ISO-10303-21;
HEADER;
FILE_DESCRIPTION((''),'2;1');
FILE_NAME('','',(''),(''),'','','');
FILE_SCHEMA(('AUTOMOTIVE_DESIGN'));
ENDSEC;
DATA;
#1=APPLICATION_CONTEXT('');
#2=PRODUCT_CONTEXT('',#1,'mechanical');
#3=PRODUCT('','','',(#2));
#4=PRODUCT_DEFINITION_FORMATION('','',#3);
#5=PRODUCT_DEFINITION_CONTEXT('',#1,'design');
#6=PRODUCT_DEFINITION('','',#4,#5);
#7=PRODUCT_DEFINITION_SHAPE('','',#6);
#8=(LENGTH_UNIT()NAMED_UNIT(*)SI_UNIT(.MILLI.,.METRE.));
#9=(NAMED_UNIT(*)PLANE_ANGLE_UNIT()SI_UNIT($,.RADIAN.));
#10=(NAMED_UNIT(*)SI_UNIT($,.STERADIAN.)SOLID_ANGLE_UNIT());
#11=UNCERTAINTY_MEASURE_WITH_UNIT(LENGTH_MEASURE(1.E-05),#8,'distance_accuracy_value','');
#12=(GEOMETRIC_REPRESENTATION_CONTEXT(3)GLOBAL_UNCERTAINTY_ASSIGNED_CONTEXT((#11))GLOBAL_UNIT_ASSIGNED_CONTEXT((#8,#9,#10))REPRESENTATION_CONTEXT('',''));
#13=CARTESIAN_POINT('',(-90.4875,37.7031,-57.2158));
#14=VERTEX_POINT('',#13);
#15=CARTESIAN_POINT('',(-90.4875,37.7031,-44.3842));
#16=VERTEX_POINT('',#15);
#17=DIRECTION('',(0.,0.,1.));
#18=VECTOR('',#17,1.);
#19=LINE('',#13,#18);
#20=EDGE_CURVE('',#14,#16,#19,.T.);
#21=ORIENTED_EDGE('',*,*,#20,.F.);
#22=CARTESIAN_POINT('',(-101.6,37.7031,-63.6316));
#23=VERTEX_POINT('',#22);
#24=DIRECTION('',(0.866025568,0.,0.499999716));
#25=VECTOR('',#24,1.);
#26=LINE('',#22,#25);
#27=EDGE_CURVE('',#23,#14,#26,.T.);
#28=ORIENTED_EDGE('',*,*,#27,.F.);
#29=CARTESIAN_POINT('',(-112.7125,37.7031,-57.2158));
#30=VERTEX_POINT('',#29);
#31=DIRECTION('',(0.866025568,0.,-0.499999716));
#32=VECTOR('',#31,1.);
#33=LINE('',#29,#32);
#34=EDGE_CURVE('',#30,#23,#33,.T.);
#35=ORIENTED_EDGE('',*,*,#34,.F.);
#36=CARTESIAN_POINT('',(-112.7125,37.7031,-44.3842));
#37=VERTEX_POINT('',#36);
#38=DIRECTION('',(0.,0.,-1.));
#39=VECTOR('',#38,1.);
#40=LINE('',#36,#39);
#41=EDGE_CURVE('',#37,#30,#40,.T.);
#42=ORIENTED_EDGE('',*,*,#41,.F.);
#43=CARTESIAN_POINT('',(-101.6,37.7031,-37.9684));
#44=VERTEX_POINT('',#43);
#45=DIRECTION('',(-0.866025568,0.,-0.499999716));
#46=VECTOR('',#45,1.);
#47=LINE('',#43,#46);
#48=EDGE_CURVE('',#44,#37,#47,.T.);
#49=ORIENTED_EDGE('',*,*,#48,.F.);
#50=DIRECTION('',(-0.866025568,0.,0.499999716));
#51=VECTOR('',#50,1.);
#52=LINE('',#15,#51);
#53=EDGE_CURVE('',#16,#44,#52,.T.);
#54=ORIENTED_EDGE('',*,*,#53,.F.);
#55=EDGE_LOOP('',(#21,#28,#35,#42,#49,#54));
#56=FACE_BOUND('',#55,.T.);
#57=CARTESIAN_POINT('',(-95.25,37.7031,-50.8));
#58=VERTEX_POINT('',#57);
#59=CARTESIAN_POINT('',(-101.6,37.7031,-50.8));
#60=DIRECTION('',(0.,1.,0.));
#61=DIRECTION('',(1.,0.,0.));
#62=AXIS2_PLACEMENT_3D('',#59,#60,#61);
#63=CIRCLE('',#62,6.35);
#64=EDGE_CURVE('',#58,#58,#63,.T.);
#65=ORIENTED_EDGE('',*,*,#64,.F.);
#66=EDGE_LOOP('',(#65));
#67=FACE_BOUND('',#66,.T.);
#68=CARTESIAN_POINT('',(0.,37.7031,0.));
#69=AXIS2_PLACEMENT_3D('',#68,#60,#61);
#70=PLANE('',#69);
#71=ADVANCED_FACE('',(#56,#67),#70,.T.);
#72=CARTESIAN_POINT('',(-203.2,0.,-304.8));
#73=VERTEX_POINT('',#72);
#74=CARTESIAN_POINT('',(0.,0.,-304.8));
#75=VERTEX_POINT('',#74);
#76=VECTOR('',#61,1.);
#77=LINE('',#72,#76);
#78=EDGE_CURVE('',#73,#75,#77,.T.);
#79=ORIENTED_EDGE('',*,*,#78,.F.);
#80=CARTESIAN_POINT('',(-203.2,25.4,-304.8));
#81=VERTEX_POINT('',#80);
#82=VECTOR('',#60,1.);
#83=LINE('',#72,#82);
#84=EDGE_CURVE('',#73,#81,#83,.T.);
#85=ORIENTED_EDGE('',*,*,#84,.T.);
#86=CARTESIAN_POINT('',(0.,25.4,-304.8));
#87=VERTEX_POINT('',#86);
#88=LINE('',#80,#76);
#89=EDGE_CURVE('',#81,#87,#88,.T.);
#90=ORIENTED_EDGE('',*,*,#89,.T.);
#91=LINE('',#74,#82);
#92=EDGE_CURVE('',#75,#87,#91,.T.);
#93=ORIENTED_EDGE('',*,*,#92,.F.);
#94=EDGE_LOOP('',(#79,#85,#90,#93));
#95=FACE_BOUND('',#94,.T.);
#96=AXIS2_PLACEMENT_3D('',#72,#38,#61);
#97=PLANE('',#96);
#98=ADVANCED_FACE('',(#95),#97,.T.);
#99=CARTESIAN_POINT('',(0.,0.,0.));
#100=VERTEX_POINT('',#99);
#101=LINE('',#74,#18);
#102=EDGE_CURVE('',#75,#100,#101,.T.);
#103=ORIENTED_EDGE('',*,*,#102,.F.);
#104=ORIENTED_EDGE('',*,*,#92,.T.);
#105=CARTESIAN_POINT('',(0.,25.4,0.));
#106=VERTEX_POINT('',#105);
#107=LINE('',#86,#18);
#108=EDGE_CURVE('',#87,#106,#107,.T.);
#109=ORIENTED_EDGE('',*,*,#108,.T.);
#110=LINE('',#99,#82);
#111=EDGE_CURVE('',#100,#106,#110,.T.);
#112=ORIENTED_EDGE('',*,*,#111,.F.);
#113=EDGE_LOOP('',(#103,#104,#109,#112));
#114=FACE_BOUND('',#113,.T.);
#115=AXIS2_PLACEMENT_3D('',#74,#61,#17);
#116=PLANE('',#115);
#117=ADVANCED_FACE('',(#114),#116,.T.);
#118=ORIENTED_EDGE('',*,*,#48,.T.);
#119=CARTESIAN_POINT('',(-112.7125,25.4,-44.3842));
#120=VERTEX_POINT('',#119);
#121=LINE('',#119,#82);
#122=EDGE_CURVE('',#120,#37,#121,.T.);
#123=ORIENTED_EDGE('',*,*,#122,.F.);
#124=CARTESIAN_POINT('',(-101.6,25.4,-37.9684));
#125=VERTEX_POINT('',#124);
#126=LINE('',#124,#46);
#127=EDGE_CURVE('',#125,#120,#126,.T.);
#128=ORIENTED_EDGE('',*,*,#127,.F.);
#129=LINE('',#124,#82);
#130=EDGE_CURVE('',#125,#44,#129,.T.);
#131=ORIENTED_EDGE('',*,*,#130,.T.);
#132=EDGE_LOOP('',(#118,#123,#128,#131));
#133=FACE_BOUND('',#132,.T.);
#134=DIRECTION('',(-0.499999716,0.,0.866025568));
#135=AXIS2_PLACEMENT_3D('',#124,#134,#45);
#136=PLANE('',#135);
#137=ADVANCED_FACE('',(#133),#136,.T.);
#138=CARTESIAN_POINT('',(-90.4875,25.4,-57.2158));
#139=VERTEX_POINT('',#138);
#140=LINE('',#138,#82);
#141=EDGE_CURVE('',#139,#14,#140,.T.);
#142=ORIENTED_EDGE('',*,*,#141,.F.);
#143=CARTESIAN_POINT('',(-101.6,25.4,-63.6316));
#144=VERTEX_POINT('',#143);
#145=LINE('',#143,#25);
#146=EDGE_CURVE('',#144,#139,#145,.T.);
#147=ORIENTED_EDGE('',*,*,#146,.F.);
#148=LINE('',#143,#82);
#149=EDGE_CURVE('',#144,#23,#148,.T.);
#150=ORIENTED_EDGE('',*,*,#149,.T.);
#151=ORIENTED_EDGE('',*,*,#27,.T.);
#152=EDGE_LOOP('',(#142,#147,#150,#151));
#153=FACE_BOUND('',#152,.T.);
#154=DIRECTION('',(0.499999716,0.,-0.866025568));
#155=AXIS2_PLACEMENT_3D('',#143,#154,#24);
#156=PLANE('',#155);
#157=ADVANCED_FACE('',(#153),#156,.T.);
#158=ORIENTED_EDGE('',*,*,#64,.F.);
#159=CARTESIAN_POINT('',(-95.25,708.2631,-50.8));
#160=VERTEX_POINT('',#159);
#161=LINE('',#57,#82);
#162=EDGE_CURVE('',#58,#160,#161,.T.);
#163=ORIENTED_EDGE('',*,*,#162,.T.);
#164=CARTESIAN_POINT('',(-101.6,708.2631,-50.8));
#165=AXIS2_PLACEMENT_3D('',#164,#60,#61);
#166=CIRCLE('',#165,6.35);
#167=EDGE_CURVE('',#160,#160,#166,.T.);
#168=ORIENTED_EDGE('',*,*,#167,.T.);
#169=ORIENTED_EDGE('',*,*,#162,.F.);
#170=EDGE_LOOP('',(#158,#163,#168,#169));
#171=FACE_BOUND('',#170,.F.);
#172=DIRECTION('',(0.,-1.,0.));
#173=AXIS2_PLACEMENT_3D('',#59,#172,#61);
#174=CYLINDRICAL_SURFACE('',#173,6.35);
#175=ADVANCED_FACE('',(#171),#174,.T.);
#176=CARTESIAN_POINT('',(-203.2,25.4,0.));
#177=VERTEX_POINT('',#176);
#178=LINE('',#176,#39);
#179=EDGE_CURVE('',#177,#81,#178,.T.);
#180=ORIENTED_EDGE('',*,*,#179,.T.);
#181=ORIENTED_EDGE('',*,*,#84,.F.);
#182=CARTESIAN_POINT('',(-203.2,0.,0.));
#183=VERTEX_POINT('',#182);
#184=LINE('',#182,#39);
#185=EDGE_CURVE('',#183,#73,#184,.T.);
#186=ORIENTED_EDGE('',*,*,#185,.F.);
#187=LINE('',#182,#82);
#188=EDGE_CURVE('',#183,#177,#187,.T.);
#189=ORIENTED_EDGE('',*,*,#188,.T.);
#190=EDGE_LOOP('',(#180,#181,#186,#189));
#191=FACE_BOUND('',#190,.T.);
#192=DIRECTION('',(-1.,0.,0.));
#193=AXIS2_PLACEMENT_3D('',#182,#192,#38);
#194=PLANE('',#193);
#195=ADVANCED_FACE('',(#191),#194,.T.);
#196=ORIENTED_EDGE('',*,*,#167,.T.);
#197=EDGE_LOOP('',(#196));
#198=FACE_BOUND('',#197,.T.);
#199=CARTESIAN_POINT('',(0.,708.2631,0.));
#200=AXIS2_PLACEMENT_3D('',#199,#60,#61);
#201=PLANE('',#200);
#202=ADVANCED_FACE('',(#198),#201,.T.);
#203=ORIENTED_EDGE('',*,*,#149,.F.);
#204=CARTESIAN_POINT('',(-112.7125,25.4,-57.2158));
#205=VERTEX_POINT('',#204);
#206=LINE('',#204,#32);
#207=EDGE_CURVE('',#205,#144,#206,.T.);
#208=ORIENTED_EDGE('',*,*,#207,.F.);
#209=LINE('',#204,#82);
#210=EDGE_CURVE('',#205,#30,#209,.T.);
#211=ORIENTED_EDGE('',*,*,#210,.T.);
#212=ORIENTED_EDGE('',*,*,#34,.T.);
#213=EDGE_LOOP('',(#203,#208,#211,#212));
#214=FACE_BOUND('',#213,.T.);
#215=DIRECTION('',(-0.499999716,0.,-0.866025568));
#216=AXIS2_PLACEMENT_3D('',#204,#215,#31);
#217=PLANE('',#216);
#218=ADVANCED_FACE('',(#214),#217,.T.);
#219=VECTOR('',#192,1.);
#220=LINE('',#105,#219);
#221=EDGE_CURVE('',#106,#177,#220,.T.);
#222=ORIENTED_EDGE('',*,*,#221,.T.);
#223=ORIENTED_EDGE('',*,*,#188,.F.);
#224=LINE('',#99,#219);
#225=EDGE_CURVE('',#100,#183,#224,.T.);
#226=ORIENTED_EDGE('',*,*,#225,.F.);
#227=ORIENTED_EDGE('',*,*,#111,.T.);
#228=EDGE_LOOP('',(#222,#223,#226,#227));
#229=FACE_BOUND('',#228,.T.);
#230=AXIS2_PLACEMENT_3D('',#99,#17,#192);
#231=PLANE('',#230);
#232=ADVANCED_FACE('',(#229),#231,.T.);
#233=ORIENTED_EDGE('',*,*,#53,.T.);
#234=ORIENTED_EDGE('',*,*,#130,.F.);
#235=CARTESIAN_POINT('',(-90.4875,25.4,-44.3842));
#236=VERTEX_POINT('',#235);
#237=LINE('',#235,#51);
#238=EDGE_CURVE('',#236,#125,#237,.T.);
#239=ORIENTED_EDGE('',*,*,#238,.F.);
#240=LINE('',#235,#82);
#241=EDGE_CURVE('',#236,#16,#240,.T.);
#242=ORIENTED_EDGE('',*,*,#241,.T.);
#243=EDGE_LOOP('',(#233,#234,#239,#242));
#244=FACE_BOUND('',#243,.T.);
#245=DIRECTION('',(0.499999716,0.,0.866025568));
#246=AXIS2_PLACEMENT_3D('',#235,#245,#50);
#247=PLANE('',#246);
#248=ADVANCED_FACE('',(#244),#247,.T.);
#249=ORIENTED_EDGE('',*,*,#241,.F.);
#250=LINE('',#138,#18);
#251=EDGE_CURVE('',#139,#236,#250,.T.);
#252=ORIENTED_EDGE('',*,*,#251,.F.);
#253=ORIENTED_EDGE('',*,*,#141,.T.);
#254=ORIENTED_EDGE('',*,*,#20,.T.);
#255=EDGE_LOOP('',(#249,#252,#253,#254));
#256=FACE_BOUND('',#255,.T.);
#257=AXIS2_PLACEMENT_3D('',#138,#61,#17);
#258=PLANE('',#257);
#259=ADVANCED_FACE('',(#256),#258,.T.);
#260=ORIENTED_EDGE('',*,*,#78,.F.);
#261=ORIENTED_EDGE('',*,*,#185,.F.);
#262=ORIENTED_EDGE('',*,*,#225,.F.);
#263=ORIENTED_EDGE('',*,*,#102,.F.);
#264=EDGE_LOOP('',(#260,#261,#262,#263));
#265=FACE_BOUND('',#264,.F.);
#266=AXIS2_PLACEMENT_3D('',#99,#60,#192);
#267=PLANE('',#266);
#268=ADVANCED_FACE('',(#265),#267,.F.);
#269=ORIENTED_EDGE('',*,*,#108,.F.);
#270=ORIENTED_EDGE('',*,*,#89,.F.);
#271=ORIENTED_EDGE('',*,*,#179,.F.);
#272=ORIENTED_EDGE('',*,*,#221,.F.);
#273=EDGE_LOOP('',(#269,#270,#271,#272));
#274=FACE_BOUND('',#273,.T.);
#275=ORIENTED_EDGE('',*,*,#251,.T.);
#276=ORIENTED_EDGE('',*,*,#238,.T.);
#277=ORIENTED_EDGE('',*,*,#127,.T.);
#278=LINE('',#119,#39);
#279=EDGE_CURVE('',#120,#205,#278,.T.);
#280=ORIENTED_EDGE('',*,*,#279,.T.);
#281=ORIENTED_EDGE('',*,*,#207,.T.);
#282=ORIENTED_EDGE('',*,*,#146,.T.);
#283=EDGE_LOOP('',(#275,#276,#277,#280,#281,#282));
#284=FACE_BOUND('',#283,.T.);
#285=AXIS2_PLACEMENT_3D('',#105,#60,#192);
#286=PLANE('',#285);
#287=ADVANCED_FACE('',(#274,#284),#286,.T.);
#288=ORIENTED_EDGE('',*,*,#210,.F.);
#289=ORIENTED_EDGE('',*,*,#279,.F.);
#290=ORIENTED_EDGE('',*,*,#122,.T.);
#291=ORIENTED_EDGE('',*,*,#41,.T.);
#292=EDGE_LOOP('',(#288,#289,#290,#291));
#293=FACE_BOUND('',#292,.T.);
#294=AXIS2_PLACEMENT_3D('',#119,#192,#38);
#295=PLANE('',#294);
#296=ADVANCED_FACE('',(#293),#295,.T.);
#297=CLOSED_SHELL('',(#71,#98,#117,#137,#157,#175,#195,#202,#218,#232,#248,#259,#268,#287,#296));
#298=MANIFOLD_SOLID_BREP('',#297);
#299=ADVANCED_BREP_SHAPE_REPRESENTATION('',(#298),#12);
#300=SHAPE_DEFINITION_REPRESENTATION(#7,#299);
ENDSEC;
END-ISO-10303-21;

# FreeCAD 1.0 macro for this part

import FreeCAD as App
import Part
import Sketcher
from FreeCAD import Vector
Q = App.Units.Quantity

doc = App.newDocument("Part")
body = doc.addObject("PartDesign::Body", "Body")

# Sketch on XZ plane
sketch1 = body.newObject("Sketcher::SketchObject", "Sketch")
sketch1.AttachmentSupport = (doc.getObject("XZ_Plane"), [""])
sketch1.MapMode = "FlatFace"
sketch1.addGeometry(Part.LineSegment(Vector(-203, 0, 0), Vector(0, 0, 0)), False)
sketch1.addGeometry(Part.LineSegment(Vector(0, 0, 0), Vector(0, -305, 0)), False)
sketch1.addGeometry(Part.LineSegment(Vector(0, -305, 0), Vector(-203, -305, 0)), False)
sketch1.addGeometry(Part.LineSegment(Vector(-203, -305, 0), Vector(-203, 0, 0)), False)
sketch1.addConstraint(Sketcher.Constraint("Coincident", 0, 2, 1, 1))
sketch1.addConstraint(Sketcher.Constraint("Coincident", 1, 2, 2, 1))
sketch1.addConstraint(Sketcher.Constraint("Coincident", 2, 2, 3, 1))
sketch1.addConstraint(Sketcher.Constraint("Coincident", 3, 2, 0, 1))
sketch1.addConstraint(Sketcher.Constraint("Horizontal", 0))
sketch1.addConstraint(Sketcher.Constraint("Vertical", 1))
sketch1.addConstraint(Sketcher.Constraint("Horizontal", 2))
sketch1.addConstraint(Sketcher.Constraint("Vertical", 3))
sketch1.addConstraint(Sketcher.Constraint("Coincident", 0, 2, -1, 1))
sketch1.addConstraint(Sketcher.Constraint("DistanceX", 0, 1, 0, 2, Q("8 in")))
sketch1.addConstraint(Sketcher.Constraint("DistanceY", 1, 2, 1, 1, Q("12 in")))
pad1 = body.newObject("PartDesign::Pad", "Pad")
pad1.Profile = sketch1
pad1.Length = Q("1 in")
pad1.Reversed = True

# Sketch on XZ plane
sketch2 = body.newObject("Sketcher::SketchObject", "Sketch001")
sketch2.AttachmentSupport = (doc.getObject("XZ_Plane"), [""])
sketch2.MapMode = "FlatFace"
sketch2.AttachmentOffset = App.Placement(Vector(0, 0, -1 * 25.4), App.Rotation())
sketch2.addGeometry(Part.LineSegment(Vector(-90, -57, 0), Vector(-102, -64, 0)), False)
sketch2.addGeometry(Part.LineSegment(Vector(-102, -64, 0), Vector(-113, -57, 0)), False)
sketch2.addGeometry(Part.LineSegment(Vector(-113, -57, 0), Vector(-113, -44, 0)), False)
sketch2.addGeometry(Part.LineSegment(Vector(-113, -44, 0), Vector(-102, -38, 0)), False)
sketch2.addGeometry(Part.LineSegment(Vector(-102, -38, 0), Vector(-90, -44, 0)), False)
sketch2.addGeometry(Part.LineSegment(Vector(-90, -44, 0), Vector(-90, -57, 0)), False)
sketch2.addConstraint(Sketcher.Constraint("Coincident", 0, 2, 1, 1))
sketch2.addConstraint(Sketcher.Constraint("Coincident", 1, 2, 2, 1))
sketch2.addConstraint(Sketcher.Constraint("Coincident", 2, 2, 3, 1))
sketch2.addConstraint(Sketcher.Constraint("Coincident", 3, 2, 4, 1))
sketch2.addConstraint(Sketcher.Constraint("Coincident", 4, 2, 5, 1))
sketch2.addConstraint(Sketcher.Constraint("Coincident", 5, 2, 0, 1))
sketch2.addConstraint(Sketcher.Constraint("Vertical", 2))
sketch2.addConstraint(Sketcher.Constraint("Vertical", 5))
sketch2.addConstraint(Sketcher.Constraint("Parallel", 0, 3))
sketch2.addConstraint(Sketcher.Constraint("Parallel", 1, 4))
sketch2.addConstraint(Sketcher.Constraint("Horizontal", 2, 2, 4, 2))
sketch2.addConstraint(Sketcher.Constraint("Horizontal", 1, 2, 5, 2))
sketch2.addConstraint(Sketcher.Constraint("Vertical", 0, 2, 3, 2))
sketch2.addConstraint(Sketcher.Constraint("DistanceX", 0, 2, -1, 1, Q("4 in")))
sketch2.addConstraint(Sketcher.Constraint("Angle", 0, Q("-150 deg")))
sketch2.addConstraint(Sketcher.Constraint("DistanceX", 2, 2, 4, 2, Q("0.875 in")))
sketch2.addConstraint(Sketcher.Constraint("DistanceY", 2, 1, 2, 2, Q("12.8316 mm")))
sketch2.addConstraint(Sketcher.Constraint("DistanceY", 1, 2, -1, 1, Q("2.2526 in")))
pad2 = body.newObject("PartDesign::Pad", "Pad001")
pad2.Profile = sketch2
pad2.Length = Q("0.484374 in")
pad2.Reversed = True

# Sketch on XZ plane
sketch3 = body.newObject("Sketcher::SketchObject", "Sketch002")
sketch3.AttachmentSupport = (doc.getObject("XZ_Plane"), [""])
sketch3.MapMode = "FlatFace"
sketch3.AttachmentOffset = App.Placement(Vector(0, 0, -1.484374 * 25.4), App.Rotation())
sketch3.addGeometry(Part.Circle(Vector(-102, -51, 0), Vector(0, 0, 1), 6), False)
sketch3.addConstraint(Sketcher.Constraint("Diameter", 0, Q("0.5 in")))
sketch3.addConstraint(Sketcher.Constraint("DistanceX", 0, 3, -1, 1, Q("4 in")))
sketch3.addConstraint(Sketcher.Constraint("DistanceY", 0, 3, -1, 1, Q("2 in")))
pad3 = body.newObject("PartDesign::Pad", "Pad002")
pad3.Profile = sketch3
pad3.Length = Q("26.4 in")
pad3.Reversed = True

doc.recompute()
